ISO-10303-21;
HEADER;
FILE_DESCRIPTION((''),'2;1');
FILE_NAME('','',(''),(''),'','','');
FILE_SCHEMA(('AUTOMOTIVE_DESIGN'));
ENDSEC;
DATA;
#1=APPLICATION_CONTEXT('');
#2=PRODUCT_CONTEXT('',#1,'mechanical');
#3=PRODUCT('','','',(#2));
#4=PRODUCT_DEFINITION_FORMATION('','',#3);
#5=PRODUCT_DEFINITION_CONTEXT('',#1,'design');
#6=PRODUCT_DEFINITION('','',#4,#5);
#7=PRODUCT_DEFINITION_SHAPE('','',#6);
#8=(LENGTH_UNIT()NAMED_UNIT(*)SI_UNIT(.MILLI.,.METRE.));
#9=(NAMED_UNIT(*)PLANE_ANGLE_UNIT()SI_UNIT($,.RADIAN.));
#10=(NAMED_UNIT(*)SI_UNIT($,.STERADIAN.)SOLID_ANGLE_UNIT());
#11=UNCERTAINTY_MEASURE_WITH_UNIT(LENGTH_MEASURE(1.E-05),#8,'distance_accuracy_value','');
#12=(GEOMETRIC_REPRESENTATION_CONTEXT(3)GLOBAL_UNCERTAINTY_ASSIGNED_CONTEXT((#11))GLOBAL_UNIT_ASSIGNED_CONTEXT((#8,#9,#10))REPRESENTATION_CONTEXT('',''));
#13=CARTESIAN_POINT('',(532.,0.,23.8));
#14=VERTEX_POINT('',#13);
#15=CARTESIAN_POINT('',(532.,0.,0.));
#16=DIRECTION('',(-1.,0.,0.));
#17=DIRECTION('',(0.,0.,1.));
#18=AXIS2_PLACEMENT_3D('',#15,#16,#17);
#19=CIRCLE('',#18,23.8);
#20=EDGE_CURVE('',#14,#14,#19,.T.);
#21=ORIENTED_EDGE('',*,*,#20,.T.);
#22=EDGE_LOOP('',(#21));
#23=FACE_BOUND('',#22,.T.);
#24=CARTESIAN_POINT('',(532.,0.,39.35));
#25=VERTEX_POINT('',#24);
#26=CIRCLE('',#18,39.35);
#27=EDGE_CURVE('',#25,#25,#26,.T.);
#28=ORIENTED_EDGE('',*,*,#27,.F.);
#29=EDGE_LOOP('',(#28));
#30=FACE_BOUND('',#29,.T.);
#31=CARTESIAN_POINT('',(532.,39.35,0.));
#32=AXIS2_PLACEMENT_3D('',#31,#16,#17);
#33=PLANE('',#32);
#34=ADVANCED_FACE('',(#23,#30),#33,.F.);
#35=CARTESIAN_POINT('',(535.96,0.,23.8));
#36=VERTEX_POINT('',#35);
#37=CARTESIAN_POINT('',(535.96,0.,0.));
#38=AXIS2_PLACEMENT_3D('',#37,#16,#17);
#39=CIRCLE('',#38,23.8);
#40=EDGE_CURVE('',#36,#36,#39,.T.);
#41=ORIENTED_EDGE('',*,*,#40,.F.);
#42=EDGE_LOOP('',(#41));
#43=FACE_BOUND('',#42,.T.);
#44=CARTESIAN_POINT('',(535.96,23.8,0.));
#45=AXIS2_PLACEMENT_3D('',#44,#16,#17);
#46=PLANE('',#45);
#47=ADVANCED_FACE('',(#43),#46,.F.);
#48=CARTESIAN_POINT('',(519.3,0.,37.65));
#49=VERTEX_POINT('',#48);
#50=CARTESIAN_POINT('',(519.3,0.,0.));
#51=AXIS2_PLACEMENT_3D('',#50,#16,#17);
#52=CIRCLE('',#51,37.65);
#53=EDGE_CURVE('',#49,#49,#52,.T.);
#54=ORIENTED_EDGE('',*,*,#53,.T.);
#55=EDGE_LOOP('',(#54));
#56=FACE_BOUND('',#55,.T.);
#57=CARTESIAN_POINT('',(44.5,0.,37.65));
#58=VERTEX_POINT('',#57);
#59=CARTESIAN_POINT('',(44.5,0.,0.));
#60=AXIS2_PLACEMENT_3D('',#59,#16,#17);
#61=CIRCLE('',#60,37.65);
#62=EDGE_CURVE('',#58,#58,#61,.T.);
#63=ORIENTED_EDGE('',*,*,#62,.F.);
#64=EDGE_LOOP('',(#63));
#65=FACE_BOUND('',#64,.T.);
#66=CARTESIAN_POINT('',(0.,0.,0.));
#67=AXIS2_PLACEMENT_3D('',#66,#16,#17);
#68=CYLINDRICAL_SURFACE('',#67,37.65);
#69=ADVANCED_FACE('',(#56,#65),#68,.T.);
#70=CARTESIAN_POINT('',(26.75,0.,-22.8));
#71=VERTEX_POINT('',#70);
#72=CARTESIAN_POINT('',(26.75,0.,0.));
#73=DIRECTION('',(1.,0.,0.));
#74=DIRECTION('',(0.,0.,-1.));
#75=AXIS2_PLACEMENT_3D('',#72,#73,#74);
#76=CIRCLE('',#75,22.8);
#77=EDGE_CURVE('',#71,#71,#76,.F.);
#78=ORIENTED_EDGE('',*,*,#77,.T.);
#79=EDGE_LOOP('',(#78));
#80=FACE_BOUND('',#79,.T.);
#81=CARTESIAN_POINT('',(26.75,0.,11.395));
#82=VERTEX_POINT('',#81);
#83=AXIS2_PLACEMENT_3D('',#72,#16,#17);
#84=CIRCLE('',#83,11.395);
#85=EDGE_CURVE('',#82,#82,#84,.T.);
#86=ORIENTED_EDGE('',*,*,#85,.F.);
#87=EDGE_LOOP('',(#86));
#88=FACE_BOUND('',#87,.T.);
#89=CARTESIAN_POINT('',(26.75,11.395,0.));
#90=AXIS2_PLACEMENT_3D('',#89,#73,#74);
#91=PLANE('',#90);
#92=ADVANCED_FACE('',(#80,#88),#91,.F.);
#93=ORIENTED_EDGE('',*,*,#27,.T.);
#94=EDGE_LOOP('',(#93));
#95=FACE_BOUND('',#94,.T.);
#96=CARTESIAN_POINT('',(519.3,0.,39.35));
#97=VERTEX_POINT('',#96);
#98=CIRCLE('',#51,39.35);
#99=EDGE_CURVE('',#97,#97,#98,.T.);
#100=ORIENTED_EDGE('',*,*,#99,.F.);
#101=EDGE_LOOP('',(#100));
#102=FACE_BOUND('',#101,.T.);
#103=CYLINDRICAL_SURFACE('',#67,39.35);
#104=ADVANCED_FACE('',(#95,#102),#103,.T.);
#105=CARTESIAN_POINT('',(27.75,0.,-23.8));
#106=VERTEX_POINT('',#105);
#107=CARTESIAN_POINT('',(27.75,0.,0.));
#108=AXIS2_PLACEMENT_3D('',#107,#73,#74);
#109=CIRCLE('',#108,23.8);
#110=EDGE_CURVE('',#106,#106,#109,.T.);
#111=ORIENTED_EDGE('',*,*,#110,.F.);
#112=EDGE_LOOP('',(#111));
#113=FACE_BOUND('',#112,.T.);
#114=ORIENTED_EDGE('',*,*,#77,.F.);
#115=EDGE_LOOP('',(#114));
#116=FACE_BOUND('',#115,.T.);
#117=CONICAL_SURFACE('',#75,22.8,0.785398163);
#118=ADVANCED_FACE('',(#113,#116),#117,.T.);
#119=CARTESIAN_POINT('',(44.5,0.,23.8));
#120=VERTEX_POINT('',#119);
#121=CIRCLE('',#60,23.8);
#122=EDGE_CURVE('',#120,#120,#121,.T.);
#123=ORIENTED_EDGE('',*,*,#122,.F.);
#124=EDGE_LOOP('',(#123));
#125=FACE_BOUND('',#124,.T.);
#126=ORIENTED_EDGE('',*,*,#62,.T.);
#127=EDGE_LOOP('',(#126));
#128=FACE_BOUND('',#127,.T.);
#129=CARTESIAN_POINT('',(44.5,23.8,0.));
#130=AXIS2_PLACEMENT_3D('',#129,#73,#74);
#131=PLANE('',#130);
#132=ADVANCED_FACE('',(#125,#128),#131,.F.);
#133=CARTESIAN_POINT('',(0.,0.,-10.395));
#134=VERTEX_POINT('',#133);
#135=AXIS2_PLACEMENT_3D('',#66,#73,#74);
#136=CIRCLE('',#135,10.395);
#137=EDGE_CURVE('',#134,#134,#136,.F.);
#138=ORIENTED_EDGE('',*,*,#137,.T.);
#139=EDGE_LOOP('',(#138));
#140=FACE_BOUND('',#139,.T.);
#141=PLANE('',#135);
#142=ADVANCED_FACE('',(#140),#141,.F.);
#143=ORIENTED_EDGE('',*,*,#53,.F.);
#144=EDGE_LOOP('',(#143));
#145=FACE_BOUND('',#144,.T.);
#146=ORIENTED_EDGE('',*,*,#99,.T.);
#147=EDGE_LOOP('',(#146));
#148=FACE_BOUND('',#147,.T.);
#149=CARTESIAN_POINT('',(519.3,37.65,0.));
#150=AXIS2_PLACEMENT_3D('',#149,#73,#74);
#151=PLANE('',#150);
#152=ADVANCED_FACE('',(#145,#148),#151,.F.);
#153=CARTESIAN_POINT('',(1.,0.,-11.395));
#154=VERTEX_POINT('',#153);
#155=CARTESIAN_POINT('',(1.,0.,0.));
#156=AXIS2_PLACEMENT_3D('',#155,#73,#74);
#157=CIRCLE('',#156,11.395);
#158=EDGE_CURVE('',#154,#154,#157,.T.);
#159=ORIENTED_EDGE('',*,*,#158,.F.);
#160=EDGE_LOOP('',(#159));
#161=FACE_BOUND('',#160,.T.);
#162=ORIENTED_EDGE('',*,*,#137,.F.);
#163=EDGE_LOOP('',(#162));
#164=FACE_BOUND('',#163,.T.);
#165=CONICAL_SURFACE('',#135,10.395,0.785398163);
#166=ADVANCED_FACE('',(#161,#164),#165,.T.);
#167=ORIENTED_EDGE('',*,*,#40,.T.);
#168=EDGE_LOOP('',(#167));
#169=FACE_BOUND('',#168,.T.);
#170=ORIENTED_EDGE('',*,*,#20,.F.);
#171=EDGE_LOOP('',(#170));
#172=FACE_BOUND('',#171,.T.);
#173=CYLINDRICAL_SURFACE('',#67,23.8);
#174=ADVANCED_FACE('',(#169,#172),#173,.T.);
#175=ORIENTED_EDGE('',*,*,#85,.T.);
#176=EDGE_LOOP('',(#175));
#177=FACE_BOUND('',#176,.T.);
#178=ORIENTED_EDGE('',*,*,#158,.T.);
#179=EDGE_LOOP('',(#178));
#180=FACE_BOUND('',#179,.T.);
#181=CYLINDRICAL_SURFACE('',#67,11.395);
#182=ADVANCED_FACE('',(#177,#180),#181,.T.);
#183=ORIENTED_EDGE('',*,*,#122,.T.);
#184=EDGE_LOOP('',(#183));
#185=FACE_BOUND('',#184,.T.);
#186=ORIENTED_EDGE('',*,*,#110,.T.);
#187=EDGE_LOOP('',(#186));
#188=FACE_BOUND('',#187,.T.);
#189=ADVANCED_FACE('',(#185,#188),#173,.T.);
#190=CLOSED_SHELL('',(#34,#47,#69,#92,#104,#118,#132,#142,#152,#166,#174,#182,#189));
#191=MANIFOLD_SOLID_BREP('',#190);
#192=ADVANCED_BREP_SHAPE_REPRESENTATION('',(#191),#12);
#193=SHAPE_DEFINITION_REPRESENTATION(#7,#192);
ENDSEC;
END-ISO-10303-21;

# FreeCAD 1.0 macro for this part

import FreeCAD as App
import Part
import Sketcher


def edges_at(feature, points):
    """Names of the edges that pass closest to the given points."""
    edges = feature.Shape.Edges
    near = lambda p: min(range(len(edges)), key=lambda i: edges[i].distToShape(Part.Vertex(*p))[0])
    return sorted({f"Edge{near(p) + 1}" for p in points})


def add_polygon(sketch, points):
    """Adds a closed chain of lines whose ends are joined by coincident constraints."""
    first, n = sketch.GeometryCount, len(points)
    for a, b in zip(points, points[1:] + points[:1]):
        sketch.addGeometry(Part.LineSegment(App.Vector(*a, 0), App.Vector(*b, 0)), False)
    for i in range(n):
        sketch.addConstraint(Sketcher.Constraint("Coincident", first + i, 2, first + (i + 1) % n, 1))

doc = App.newDocument("Part")
body = doc.addObject("PartDesign::Body", "Body")

# Sketch on XY plane
sketch1 = body.newObject("Sketcher::SketchObject", "Sketch")
sketch1.AttachmentSupport = (doc.getObject("XY_Plane"), [""])
sketch1.MapMode = "FlatFace"
add_polygon(sketch1, [(0, 11.4), (0, 0), (536, 0), (536, 23.8), (532, 23.8), (532, 39.4), (519.3, 39.4), (519.3, 37.6), (44.5, 37.6), (44.5, 23.8), (26.8, 23.8), (26.8, 11.4)])  # lines 0-11
sketch1.addConstraint(Sketcher.Constraint("Vertical", 0))
sketch1.addConstraint(Sketcher.Constraint("Horizontal", 1))
sketch1.addConstraint(Sketcher.Constraint("Vertical", 2))
sketch1.addConstraint(Sketcher.Constraint("Horizontal", 3))
sketch1.addConstraint(Sketcher.Constraint("Vertical", 4))
sketch1.addConstraint(Sketcher.Constraint("Horizontal", 5))
sketch1.addConstraint(Sketcher.Constraint("Vertical", 6))
sketch1.addConstraint(Sketcher.Constraint("Horizontal", 7))
sketch1.addConstraint(Sketcher.Constraint("Vertical", 8))
sketch1.addConstraint(Sketcher.Constraint("Horizontal", 9))
sketch1.addConstraint(Sketcher.Constraint("Vertical", 10))
sketch1.addConstraint(Sketcher.Constraint("Horizontal", 11))
sketch1.addConstraint(Sketcher.Constraint("Coincident", 0, 2, -1, 1))
sketch1.addConstraint(Sketcher.Constraint("Horizontal", 3, 2, 8, 2))
sketch1.addConstraint(Sketcher.Constraint("DistanceX", 5, 2, 5, 1, 12.7))
sketch1.addConstraint(Sketcher.Constraint("DistanceX", 7, 2, 7, 1, 474.8))
sketch1.addConstraint(Sketcher.Constraint("DistanceY", 2, 1, 2, 2, 23.8))
sketch1.addConstraint(Sketcher.Constraint("DistanceY", 6, 2, 6, 1, 1.7))
sketch1.addConstraint(Sketcher.Constraint("DistanceX", -1, 1, 3, 2, 532.0))
sketch1.addConstraint(Sketcher.Constraint("DistanceX", 1, 1, 1, 2, 535.96))
sketch1.addConstraint(Sketcher.Constraint("DistanceX", 9, 2, 9, 1, 17.75))
sketch1.addConstraint(Sketcher.Constraint("DistanceY", 4, 1, 4, 2, 15.55))
sketch1.addConstraint(Sketcher.Constraint("DistanceY", 0, 2, 0, 1, 11.395))
revolution = body.newObject("PartDesign::Revolution", "Revolution")
revolution.Profile = sketch1
revolution.ReferenceAxis = (sketch1, ["H_Axis"])
revolution.Angle = 360
doc.recompute()

chamfer = body.newObject("PartDesign::Chamfer", "Chamfer")
chamfer.Base = (revolution, edges_at(revolution, [(26.75, -23.8, 0), (0, -11.395, 0)]))
chamfer.Size = 1

doc.recompute()
